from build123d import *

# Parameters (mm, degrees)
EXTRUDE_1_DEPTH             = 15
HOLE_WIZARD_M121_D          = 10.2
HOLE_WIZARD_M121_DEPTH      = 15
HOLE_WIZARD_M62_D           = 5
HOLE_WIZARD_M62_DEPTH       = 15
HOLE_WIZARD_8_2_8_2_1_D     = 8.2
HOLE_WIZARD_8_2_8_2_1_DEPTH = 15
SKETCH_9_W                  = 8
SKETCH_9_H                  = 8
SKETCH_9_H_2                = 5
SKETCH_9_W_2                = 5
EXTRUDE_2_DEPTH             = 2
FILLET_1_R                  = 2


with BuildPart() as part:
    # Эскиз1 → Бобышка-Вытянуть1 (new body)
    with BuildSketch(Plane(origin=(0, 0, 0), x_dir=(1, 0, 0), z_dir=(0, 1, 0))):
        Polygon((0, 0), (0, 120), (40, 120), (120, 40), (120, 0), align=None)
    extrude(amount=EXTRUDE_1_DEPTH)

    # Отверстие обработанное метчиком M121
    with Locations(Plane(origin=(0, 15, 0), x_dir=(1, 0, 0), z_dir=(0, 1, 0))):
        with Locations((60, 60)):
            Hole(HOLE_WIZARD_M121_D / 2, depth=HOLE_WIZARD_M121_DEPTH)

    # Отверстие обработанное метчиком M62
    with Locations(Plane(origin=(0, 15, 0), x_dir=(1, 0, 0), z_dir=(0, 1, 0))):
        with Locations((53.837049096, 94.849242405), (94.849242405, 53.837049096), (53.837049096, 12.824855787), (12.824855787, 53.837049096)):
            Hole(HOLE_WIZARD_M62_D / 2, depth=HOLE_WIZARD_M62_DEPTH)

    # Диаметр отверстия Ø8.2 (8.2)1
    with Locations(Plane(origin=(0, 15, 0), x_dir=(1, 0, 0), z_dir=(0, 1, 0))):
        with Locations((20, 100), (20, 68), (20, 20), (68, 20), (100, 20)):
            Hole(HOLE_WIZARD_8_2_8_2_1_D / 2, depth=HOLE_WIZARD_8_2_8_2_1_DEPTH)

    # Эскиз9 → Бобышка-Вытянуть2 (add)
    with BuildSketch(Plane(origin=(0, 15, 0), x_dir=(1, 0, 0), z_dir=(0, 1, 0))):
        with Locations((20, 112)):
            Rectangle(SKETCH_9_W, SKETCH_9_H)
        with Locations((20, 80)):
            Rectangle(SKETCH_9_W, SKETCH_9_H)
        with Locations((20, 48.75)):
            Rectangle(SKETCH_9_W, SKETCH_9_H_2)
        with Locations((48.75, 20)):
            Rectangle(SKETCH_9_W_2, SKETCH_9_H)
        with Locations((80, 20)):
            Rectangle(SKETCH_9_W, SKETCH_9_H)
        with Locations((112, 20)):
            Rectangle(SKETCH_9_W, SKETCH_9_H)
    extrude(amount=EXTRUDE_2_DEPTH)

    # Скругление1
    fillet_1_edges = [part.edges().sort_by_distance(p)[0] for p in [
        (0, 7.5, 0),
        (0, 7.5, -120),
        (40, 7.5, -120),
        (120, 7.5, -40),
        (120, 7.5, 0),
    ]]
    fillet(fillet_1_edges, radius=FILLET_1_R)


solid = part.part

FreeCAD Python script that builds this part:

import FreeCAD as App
import Part
import Sketcher
Q = App.Units.Quantity


def edges_at(feature, points):
    """Names of the edges that pass closest to the given points."""
    edges = feature.Shape.Edges
    near = lambda p: min(range(len(edges)), key=lambda i: edges[i].distToShape(Part.Vertex(*p))[0])
    return sorted({f"Edge{near(p) + 1}" for p in points})

doc = App.newDocument("Part")
body = doc.addObject("PartDesign::Body", "Body")

# Sketch on XZ plane
sketch1 = body.newObject("Sketcher::SketchObject", "Sketch")
sketch1.AttachmentSupport = (doc.getObject("XZ_Plane"), [""])
sketch1.MapMode = "FlatFace"
sketch1.addGeometry([
    Part.LineSegment(App.Vector(0, -120, 0), App.Vector(0, 0, 0)),  # 0
    Part.LineSegment(App.Vector(0, 0, 0), App.Vector(120, 0, 0)),  # 1
    Part.LineSegment(App.Vector(120, 0, 0), App.Vector(120, -40, 0)),  # 2
    Part.LineSegment(App.Vector(120, -40, 0), App.Vector(40, -120, 0)),  # 3
    Part.LineSegment(App.Vector(40, -120, 0), App.Vector(0, -120, 0)),  # 4
], False)
sketch1.addConstraint([
    Sketcher.Constraint("Coincident", 0, 2, 1, 1),
    Sketcher.Constraint("Coincident", 1, 2, 2, 1),
    Sketcher.Constraint("Coincident", 2, 2, 3, 1),
    Sketcher.Constraint("Coincident", 3, 2, 4, 1),
    Sketcher.Constraint("Coincident", 4, 2, 0, 1),
    Sketcher.Constraint("Vertical", 0),
    Sketcher.Constraint("Horizontal", 1),
    Sketcher.Constraint("Vertical", 2),
    Sketcher.Constraint("Horizontal", 4),
    Sketcher.Constraint("Coincident", 0, 2, -1, 1),
    Sketcher.Constraint("Equal", 1, 0),
    Sketcher.Constraint("Equal", 4, 2),
    Sketcher.Constraint("DistanceX", 1, 1, 1, 2, Q("120 mm")),
    Sketcher.Constraint("DistanceX", 4, 2, 4, 1, Q("40 mm")),
])
pad1 = body.newObject("PartDesign::Pad", "Pad")
pad1.Profile = sketch1
pad1.Length = 15
pad1.Reversed = True

# Sketch on XZ plane
sketch2 = body.newObject("Sketcher::SketchObject", "Sketch001")
sketch2.AttachmentSupport = (doc.getObject("XZ_Plane"), [""])
sketch2.MapMode = "FlatFace"
sketch2.AttachmentOffset = App.Placement(App.Vector(0, 0, -15), App.Rotation())
sketch2.addGeometry(Part.Circle(App.Vector(60, -60, 0), App.Vector(0, 0, 1), 5), False)
sketch2.addConstraint([
    Sketcher.Constraint("Diameter", 0, Q("10.2 mm")),
    Sketcher.Constraint("DistanceX", -1, 1, 0, 3, Q("60 mm")),
    Sketcher.Constraint("DistanceY", 0, 3, -1, 1, Q("60 mm")),
])
doc.recompute()
hole = body.newObject("PartDesign::Hole", "Hole")
hole.Profile = sketch2
hole.ThreadType = "None"
hole.Diameter = 10.2
hole.DepthType = "Dimension"
hole.Depth = 15
hole.DrillPoint = "Flat"
hole.Reversed = True

# Sketch on XZ plane
sketch3 = body.newObject("Sketcher::SketchObject", "Sketch002")
sketch3.AttachmentSupport = (doc.getObject("XZ_Plane"), [""])
sketch3.MapMode = "FlatFace"
sketch3.AttachmentOffset = App.Placement(App.Vector(0, 0, -15), App.Rotation())
sketch3.addGeometry([
    Part.Circle(App.Vector(53.8, -94.8, 0), App.Vector(0, 0, 1), 2.5),
    Part.Circle(App.Vector(94.8, -53.8, 0), App.Vector(0, 0, 1), 2.5),
    Part.Circle(App.Vector(53.8, -12.8, 0), App.Vector(0, 0, 1), 2.5),
    Part.Circle(App.Vector(12.8, -53.8, 0), App.Vector(0, 0, 1), 2.5),
], False)
sketch3.addConstraint([
    Sketcher.Constraint("Equal", 0, 1),
    Sketcher.Constraint("Equal", 1, 2),
    Sketcher.Constraint("Equal", 2, 3),
    Sketcher.Constraint("Horizontal", 1, 3, 3, 3),
    Sketcher.Constraint("Vertical", 0, 3, 2, 3),
    Sketcher.Constraint("Diameter", 0, Q("5 mm")),
    Sketcher.Constraint("DistanceX", -1, 1, 0, 3, Q("53.837049 mm")),
    Sketcher.Constraint("DistanceY", 1, 3, -1, 1, Q("53.837049 mm")),
    Sketcher.Constraint("DistanceY", 0, 3, -1, 1, Q("94.849242 mm")),
    Sketcher.Constraint("DistanceX", -1, 1, 1, 3, Q("94.849242 mm")),
    Sketcher.Constraint("DistanceY", 2, 3, -1, 1, Q("12.824856 mm")),
    Sketcher.Constraint("DistanceX", -1, 1, 3, 3, Q("12.824856 mm")),
])
doc.recompute()
hole2 = body.newObject("PartDesign::Hole", "Hole001")
hole2.Profile = sketch3
hole2.ThreadType = "None"
hole2.Diameter = 5
hole2.DepthType = "Dimension"
hole2.Depth = 15
hole2.DrillPoint = "Flat"
hole2.Reversed = True

# Sketch on XZ plane
sketch4 = body.newObject("Sketcher::SketchObject", "Sketch003")
sketch4.AttachmentSupport = (doc.getObject("XZ_Plane"), [""])
sketch4.MapMode = "FlatFace"
sketch4.AttachmentOffset = App.Placement(App.Vector(0, 0, -15), App.Rotation())
sketch4.addGeometry([
    Part.Circle(App.Vector(20, -100, 0), App.Vector(0, 0, 1), 4.1),  # 0
    Part.Circle(App.Vector(20, -68, 0), App.Vector(0, 0, 1), 4.1),  # 1
    Part.Circle(App.Vector(20, -20, 0), App.Vector(0, 0, 1), 4.1),  # 2
    Part.Circle(App.Vector(68, -20, 0), App.Vector(0, 0, 1), 4.1),  # 3
    Part.Circle(App.Vector(100, -20, 0), App.Vector(0, 0, 1), 4.1),  # 4
], False)
sketch4.addConstraint([
    Sketcher.Constraint("Equal", 0, 1),
    Sketcher.Constraint("Equal", 1, 2),
    Sketcher.Constraint("Equal", 2, 3),
    Sketcher.Constraint("Equal", 3, 4),
    Sketcher.Constraint("Horizontal", 2, 3, 3, 3),
    Sketcher.Constraint("Horizontal", 3, 3, 4, 3),
    Sketcher.Constraint("Vertical", 0, 3, 1, 3),
    Sketcher.Constraint("Vertical", 1, 3, 2, 3),
    Sketcher.Constraint("Diameter", 0, Q("8.2 mm")),
    Sketcher.Constraint("DistanceX", -1, 1, 0, 3, Q("20 mm")),
    Sketcher.Constraint("DistanceY", 0, 3, -1, 1, Q("100 mm")),
    Sketcher.Constraint("DistanceY", 1, 3, -1, 1, Q("68 mm")),
    Sketcher.Constraint("DistanceY", 2, 3, -1, 1, Q("20 mm")),
    Sketcher.Constraint("DistanceX", -1, 1, 3, 3, Q("68 mm")),
    Sketcher.Constraint("DistanceX", -1, 1, 4, 3, Q("100 mm")),
])
doc.recompute()
hole3 = body.newObject("PartDesign::Hole", "Hole002")
hole3.Profile = sketch4
hole3.ThreadType = "None"
hole3.Diameter = 8.2
hole3.DepthType = "Dimension"
hole3.Depth = 15
hole3.DrillPoint = "Flat"
hole3.Reversed = True

# Sketch on XZ plane
sketch5 = body.newObject("Sketcher::SketchObject", "Sketch004")
sketch5.AttachmentSupport = (doc.getObject("XZ_Plane"), [""])
sketch5.MapMode = "FlatFace"
sketch5.AttachmentOffset = App.Placement(App.Vector(0, 0, -15), App.Rotation())
sketch5.addGeometry([
    Part.LineSegment(App.Vector(16, -116, 0), App.Vector(16, -108, 0)),  # 0
    Part.LineSegment(App.Vector(16, -108, 0), App.Vector(24, -108, 0)),  # 1
    Part.LineSegment(App.Vector(24, -108, 0), App.Vector(24, -116, 0)),  # 2
    Part.LineSegment(App.Vector(24, -116, 0), App.Vector(16, -116, 0)),  # 3
    Part.LineSegment(App.Vector(16, -84, 0), App.Vector(16, -76, 0)),  # 4
    Part.LineSegment(App.Vector(16, -76, 0), App.Vector(24, -76, 0)),  # 5
    Part.LineSegment(App.Vector(24, -76, 0), App.Vector(24, -84, 0)),  # 6
    Part.LineSegment(App.Vector(24, -84, 0), App.Vector(16, -84, 0)),  # 7
    Part.LineSegment(App.Vector(16, -51, 0), App.Vector(16, -46, 0)),  # 8
    Part.LineSegment(App.Vector(16, -46, 0), App.Vector(24, -46, 0)),  # 9
    Part.LineSegment(App.Vector(24, -46, 0), App.Vector(24, -51, 0)),  # 10
    Part.LineSegment(App.Vector(24, -51, 0), App.Vector(16, -51, 0)),  # 11
    Part.LineSegment(App.Vector(46, -24, 0), App.Vector(46, -16, 0)),  # 12
    Part.LineSegment(App.Vector(46, -16, 0), App.Vector(51, -16, 0)),  # 13
    Part.LineSegment(App.Vector(51, -16, 0), App.Vector(51, -24, 0)),  # 14
    Part.LineSegment(App.Vector(51, -24, 0), App.Vector(46, -24, 0)),  # 15
    Part.LineSegment(App.Vector(76, -24, 0), App.Vector(76, -16, 0)),  # 16
    Part.LineSegment(App.Vector(76, -16, 0), App.Vector(84, -16, 0)),  # 17
    Part.LineSegment(App.Vector(84, -16, 0), App.Vector(84, -24, 0)),  # 18
    Part.LineSegment(App.Vector(84, -24, 0), App.Vector(76, -24, 0)),  # 19
    Part.LineSegment(App.Vector(108, -24, 0), App.Vector(108, -16, 0)),  # 20
    Part.LineSegment(App.Vector(108, -16, 0), App.Vector(116, -16, 0)),  # 21
    Part.LineSegment(App.Vector(116, -16, 0), App.Vector(116, -24, 0)),  # 22
    Part.LineSegment(App.Vector(116, -24, 0), App.Vector(108, -24, 0)),  # 23
], False)
sketch5.addConstraint([
    Sketcher.Constraint("Coincident", 0, 2, 1, 1),
    Sketcher.Constraint("Coincident", 1, 2, 2, 1),
    Sketcher.Constraint("Coincident", 2, 2, 3, 1),
    Sketcher.Constraint("Coincident", 3, 2, 0, 1),
    Sketcher.Constraint("Coincident", 4, 2, 5, 1),
    Sketcher.Constraint("Coincident", 5, 2, 6, 1),
    Sketcher.Constraint("Coincident", 6, 2, 7, 1),
    Sketcher.Constraint("Coincident", 7, 2, 4, 1),
    Sketcher.Constraint("Coincident", 8, 2, 9, 1),
    Sketcher.Constraint("Coincident", 9, 2, 10, 1),
    Sketcher.Constraint("Coincident", 10, 2, 11, 1),
    Sketcher.Constraint("Coincident", 11, 2, 8, 1),
    Sketcher.Constraint("Coincident", 12, 2, 13, 1),
    Sketcher.Constraint("Coincident", 13, 2, 14, 1),
    Sketcher.Constraint("Coincident", 14, 2, 15, 1),
    Sketcher.Constraint("Coincident", 15, 2, 12, 1),
    Sketcher.Constraint("Coincident", 16, 2, 17, 1),
    Sketcher.Constraint("Coincident", 17, 2, 18, 1),
    Sketcher.Constraint("Coincident", 18, 2, 19, 1),
    Sketcher.Constraint("Coincident", 19, 2, 16, 1),
    Sketcher.Constraint("Coincident", 20, 2, 21, 1),
    Sketcher.Constraint("Coincident", 21, 2, 22, 1),
    Sketcher.Constraint("Coincident", 22, 2, 23, 1),
    Sketcher.Constraint("Coincident", 23, 2, 20, 1),
    Sketcher.Constraint("Vertical", 0),
    Sketcher.Constraint("Horizontal", 1),
    Sketcher.Constraint("Vertical", 2),
    Sketcher.Constraint("Horizontal", 3),
    Sketcher.Constraint("Vertical", 4),
    Sketcher.Constraint("Horizontal", 5),
    Sketcher.Constraint("Vertical", 6),
    Sketcher.Constraint("Horizontal", 7),
    Sketcher.Constraint("Vertical", 8),
    Sketcher.Constraint("Horizontal", 9),
    Sketcher.Constraint("Vertical", 10),
    Sketcher.Constraint("Horizontal", 11),
    Sketcher.Constraint("Vertical", 12),
    Sketcher.Constraint("Horizontal", 13),
    Sketcher.Constraint("Vertical", 14),
    Sketcher.Constraint("Horizontal", 15),
    Sketcher.Constraint("Vertical", 16),
    Sketcher.Constraint("Horizontal", 17),
    Sketcher.Constraint("Vertical", 18),
    Sketcher.Constraint("Horizontal", 19),
    Sketcher.Constraint("Vertical", 20),
    Sketcher.Constraint("Horizontal", 21),
    Sketcher.Constraint("Vertical", 22),
    Sketcher.Constraint("Horizontal", 23),
    Sketcher.Constraint("Horizontal", 13, 2, 16, 2),
    Sketcher.Constraint("Horizontal", 15, 2, 18, 2),
    Sketcher.Constraint("Horizontal", 17, 2, 20, 2),
    Sketcher.Constraint("Horizontal", 19, 2, 22, 2),
    Sketcher.Constraint("Vertical", 3, 2, 4, 2),
    Sketcher.Constraint("Vertical", 2, 2, 5, 2),
    Sketcher.Constraint("Vertical", 7, 2, 8, 2),
    Sketcher.Constraint("Vertical", 6, 2, 9, 2),
    Sketcher.Constraint("Equal", 11, 17),
    Sketcher.Constraint("Equal", 19, 21),
    Sketcher.Constraint("Equal", 23, 0),
    Sketcher.Constraint("Equal", 2, 4),
    Sketcher.Constraint("Equal", 15, 8),
    Sketcher.Constraint("Equal", 6, 12),
    Sketcher.Constraint("DistanceX", 1, 1, 1, 2, Q("8 mm")),
    Sketcher.Constraint("DistanceX", 13, 1, 13, 2, Q("5 mm")),
    Sketcher.Constraint("DistanceX", -1, 1, 0, 2, Q("16 mm")),
    Sketcher.Constraint("DistanceY", 0, 2, -1, 1, Q("108 mm")),
    Sketcher.Constraint("DistanceY", 4, 2, -1, 1, Q("76 mm")),
    Sketcher.Constraint("DistanceY", 12, 2, -1, 1, Q("16 mm")),
    Sketcher.Constraint("DistanceX", -1, 1, 16, 2, Q("76 mm")),
    Sketcher.Constraint("DistanceX", -1, 1, 20, 2, Q("108 mm")),
    Sketcher.Constraint("DistanceY", 8, 2, -1, 1, Q("46.25 mm")),
    Sketcher.Constraint("DistanceX", -1, 1, 12, 2, Q("46.25 mm")),
])
pad2 = body.newObject("PartDesign::Pad", "Pad001")
pad2.Profile = sketch5
pad2.Length = 2
pad2.Reversed = True
doc.recompute()

fillet = body.newObject("PartDesign::Fillet", "Fillet")
fillet.Base = (pad2, edges_at(pad2, [
    (0, 7.5, 0),
    (0, 7.5, -120),
    (40, 7.5, -120),
    (120, 7.5, -40),
    (120, 7.5, 0),
]))
fillet.Radius = 2

doc.recompute()
